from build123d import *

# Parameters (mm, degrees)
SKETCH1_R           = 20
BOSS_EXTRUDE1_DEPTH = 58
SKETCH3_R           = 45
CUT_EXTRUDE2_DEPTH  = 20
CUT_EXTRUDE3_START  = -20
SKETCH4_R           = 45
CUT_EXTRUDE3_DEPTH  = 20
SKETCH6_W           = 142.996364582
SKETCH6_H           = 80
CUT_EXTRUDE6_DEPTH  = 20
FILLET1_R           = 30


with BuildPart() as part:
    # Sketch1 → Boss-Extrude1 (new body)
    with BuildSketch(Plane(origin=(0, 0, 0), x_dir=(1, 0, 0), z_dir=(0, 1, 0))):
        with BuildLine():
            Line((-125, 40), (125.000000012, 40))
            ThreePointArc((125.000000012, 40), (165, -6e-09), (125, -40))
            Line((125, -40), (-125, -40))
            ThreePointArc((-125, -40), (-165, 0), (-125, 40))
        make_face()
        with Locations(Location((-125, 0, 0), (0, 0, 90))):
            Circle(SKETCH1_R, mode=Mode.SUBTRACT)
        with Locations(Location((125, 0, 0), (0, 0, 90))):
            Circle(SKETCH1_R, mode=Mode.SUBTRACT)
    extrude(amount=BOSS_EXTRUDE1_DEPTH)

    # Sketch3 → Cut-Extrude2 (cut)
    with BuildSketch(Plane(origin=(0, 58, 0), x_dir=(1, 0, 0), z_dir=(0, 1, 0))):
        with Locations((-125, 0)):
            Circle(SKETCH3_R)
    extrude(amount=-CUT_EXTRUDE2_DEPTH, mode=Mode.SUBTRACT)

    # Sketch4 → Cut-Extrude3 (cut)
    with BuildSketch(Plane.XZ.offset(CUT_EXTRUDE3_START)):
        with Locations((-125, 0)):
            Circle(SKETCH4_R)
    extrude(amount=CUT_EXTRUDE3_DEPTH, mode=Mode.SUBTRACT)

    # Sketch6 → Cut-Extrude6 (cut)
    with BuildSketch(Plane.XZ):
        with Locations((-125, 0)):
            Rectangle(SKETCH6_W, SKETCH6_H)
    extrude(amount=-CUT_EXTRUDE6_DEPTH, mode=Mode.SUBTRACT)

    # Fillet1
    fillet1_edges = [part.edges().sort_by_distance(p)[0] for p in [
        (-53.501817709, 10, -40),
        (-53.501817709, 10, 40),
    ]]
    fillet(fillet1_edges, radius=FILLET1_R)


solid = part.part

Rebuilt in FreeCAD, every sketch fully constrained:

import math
import FreeCAD as App
import Part
import Sketcher
from FreeCAD import Vector


def edges_at(feature, points):
    """Names of the edges that pass closest to the given points."""
    edges = feature.Shape.Edges
    near = lambda p: min(range(len(edges)), key=lambda i: edges[i].distToShape(Part.Vertex(*p))[0])
    return sorted({f"Edge{near(p) + 1}" for p in points})


def add_polygon(sketch, points):
    """Adds a closed chain of lines whose ends are joined by coincident constraints."""
    first, n = sketch.GeometryCount, len(points)
    for a, b in zip(points, points[1:] + points[:1]):
        sketch.addGeometry(Part.LineSegment(App.Vector(*a, 0), App.Vector(*b, 0)), False)
    for i in range(n):
        sketch.addConstraint(Sketcher.Constraint("Coincident", first + i, 2, first + (i + 1) % n, 1))

doc = App.newDocument("Part")
params = doc.addObject("Spreadsheet::Sheet", "Params")
for row, (alias, value) in enumerate([
    ("sketch1_diameter", "40 mm"),
    ("sketch1_radius", "40 mm"),
    ("sketch1_width", "250 mm"),
    ("pad1_length", "58 mm"),
    ("sketch2_diameter", "90 mm"),
    ("pocket1_length", "20 mm"),
    ("sketch3_diameter", "90 mm"),
    ("pocket2_length", "20 mm"),
    ("sketch4_height", "80 mm"),
    ("pocket3_length", "20 mm"),
    ("fillet_radius", "30 mm"),
], start=1):
    params.set(f"A{row}", alias)
    params.set(f"B{row}", "=" + value)
    params.setAlias(f"B{row}", alias)

body = doc.addObject("PartDesign::Body", "Body")

# Sketch on XZ plane
sketch1 = doc.addObject("Sketcher::SketchObject", "Sketch")
body.addObject(sketch1)
sketch1.AttachmentSupport = (doc.XZ_Plane, [""])
sketch1.MapMode = "FlatFace"
sketch1.addGeometry([
    Part.LineSegment(Vector(125, -40, 0), Vector(-125, -40, 0)),  # 0
    Part.ArcOfCircle(Part.Circle(Vector(-125, 0, 0), Vector(0, 0, 1), 40), math.radians(90), math.radians(270)),  # 1
    Part.LineSegment(Vector(-125, 40, 0), Vector(125, 40, 0)),  # 2
    Part.ArcOfCircle(Part.Circle(Vector(125, 0, 0), Vector(0, 0, 1), 40), math.radians(-90), math.radians(90)),  # 3
    Part.Circle(Vector(125, 0, 0), Vector(0, 0, 1), 20),  # 4
    Part.Circle(Vector(-125, 0, 0), Vector(0, 0, 1), 20),  # 5
], False)
sketch1.addConstraint([
    Sketcher.Constraint("Tangent", 0, 2, 1, 2),
    Sketcher.Constraint("Tangent", 1, 1, 2, 1),
    Sketcher.Constraint("Tangent", 2, 2, 3, 2),
    Sketcher.Constraint("Tangent", 3, 1, 0, 1),
    Sketcher.Constraint("Horizontal", 0),
    Sketcher.Constraint("Horizontal", 2),
    Sketcher.Constraint("Coincident", 4, 3, 3, 3),
    Sketcher.Constraint("Coincident", 5, 3, 1, 3),
    Sketcher.Constraint("Equal", 4, 5),
    Sketcher.Constraint("Symmetric", 1, 3, 3, 3, -1, 1),
    Sketcher.Constraint("Diameter", 4, 40.0),
    Sketcher.Constraint("Radius", 1, 40.0),
    Sketcher.Constraint("DistanceX", 0, 2, 0, 1, 250.0),
])
sketch1.setExpression("Constraints[10]", "Params.sketch1_diameter")
sketch1.setExpression("Constraints[11]", "Params.sketch1_radius")
sketch1.setExpression("Constraints[12]", "Params.sketch1_width")
pad1 = doc.addObject("PartDesign::Pad", "Pad")
body.addObject(pad1)
pad1.Profile = sketch1
pad1.setExpression("Length", "Params.pad1_length")
pad1.Reversed = True

# Sketch on XZ plane
sketch2 = doc.addObject("Sketcher::SketchObject", "Sketch001")
body.addObject(sketch2)
sketch2.AttachmentSupport = (doc.XZ_Plane, [""])
sketch2.MapMode = "FlatFace"
sketch2.AttachmentOffset = App.Placement(Vector(0, 0, -58), App.Rotation())
sketch2.addGeometry(Part.Circle(Vector(-125, 0, 0), Vector(0, 0, 1), 45), False)
sketch2.addConstraint([
    Sketcher.Constraint("PointOnObject", 0, 3, -1),
    Sketcher.Constraint("Diameter", 0, 90.0),
    Sketcher.Constraint("DistanceX", 0, 3, -1, 1, 125.0),
])
sketch2.setExpression("Constraints[1]", "Params.sketch2_diameter")
pocket1 = doc.addObject("PartDesign::Pocket", "Pocket")
body.addObject(pocket1)
pocket1.Profile = sketch2
pocket1.setExpression("Length", "Params.pocket1_length")
pocket1.Reversed = True

# Sketch on XZ plane
sketch3 = doc.addObject("Sketcher::SketchObject", "Sketch002")
body.addObject(sketch3)
sketch3.AttachmentSupport = (doc.XZ_Plane, [""])
sketch3.MapMode = "FlatFace"
sketch3.AttachmentOffset = App.Placement(Vector(0, 0, -20), App.Rotation())
sketch3.addGeometry(Part.Circle(Vector(-125, 0, 0), Vector(0, 0, 1), 45), False)
sketch3.addConstraint([
    Sketcher.Constraint("PointOnObject", 0, 3, -1),
    Sketcher.Constraint("Diameter", 0, 90.0),
    Sketcher.Constraint("DistanceX", 0, 3, -1, 1, 125.0),
])
sketch3.setExpression("Constraints[1]", "Params.sketch3_diameter")
pocket2 = doc.addObject("PartDesign::Pocket", "Pocket001")
body.addObject(pocket2)
pocket2.Profile = sketch3
pocket2.setExpression("Length", "Params.pocket2_length")
pocket2.Reversed = True

# Sketch on XZ plane
sketch4 = doc.addObject("Sketcher::SketchObject", "Sketch003")
body.addObject(sketch4)
sketch4.AttachmentSupport = (doc.XZ_Plane, [""])
sketch4.MapMode = "FlatFace"
add_polygon(sketch4, [(-196, 40), (-196, -40), (-54, -40), (-54, 40)])  # lines 0-3
sketch4.addConstraint([
    Sketcher.Constraint("Vertical", 0),
    Sketcher.Constraint("Horizontal", 1),
    Sketcher.Constraint("Vertical", 2),
    Sketcher.Constraint("Horizontal", 3),
    Sketcher.Constraint("DistanceY", 0, 2, 0, 1, 80.0),
    Sketcher.Constraint("DistanceY", 0, 2, -1, 1, 40.0),
    Sketcher.Constraint("DistanceX", 1, 1, 1, 2, 142.996365),
    Sketcher.Constraint("DistanceX", 0, 2, -1, 1, 196.498182),
])
sketch4.setExpression("Constraints[8]", "Params.sketch4_height")
pocket3 = doc.addObject("PartDesign::Pocket", "Pocket002")
body.addObject(pocket3)
pocket3.Profile = sketch4
pocket3.setExpression("Length", "Params.pocket3_length")
doc.recompute()

fillet = doc.addObject("PartDesign::Fillet", "Fillet")
body.addObject(fillet)
fillet.Base = (pocket3, edges_at(pocket3, [(-53.502, 10, -40), (-53.502, 10, 40)]))
fillet.setExpression("Radius", "Params.fillet_radius")

doc.recompute()
